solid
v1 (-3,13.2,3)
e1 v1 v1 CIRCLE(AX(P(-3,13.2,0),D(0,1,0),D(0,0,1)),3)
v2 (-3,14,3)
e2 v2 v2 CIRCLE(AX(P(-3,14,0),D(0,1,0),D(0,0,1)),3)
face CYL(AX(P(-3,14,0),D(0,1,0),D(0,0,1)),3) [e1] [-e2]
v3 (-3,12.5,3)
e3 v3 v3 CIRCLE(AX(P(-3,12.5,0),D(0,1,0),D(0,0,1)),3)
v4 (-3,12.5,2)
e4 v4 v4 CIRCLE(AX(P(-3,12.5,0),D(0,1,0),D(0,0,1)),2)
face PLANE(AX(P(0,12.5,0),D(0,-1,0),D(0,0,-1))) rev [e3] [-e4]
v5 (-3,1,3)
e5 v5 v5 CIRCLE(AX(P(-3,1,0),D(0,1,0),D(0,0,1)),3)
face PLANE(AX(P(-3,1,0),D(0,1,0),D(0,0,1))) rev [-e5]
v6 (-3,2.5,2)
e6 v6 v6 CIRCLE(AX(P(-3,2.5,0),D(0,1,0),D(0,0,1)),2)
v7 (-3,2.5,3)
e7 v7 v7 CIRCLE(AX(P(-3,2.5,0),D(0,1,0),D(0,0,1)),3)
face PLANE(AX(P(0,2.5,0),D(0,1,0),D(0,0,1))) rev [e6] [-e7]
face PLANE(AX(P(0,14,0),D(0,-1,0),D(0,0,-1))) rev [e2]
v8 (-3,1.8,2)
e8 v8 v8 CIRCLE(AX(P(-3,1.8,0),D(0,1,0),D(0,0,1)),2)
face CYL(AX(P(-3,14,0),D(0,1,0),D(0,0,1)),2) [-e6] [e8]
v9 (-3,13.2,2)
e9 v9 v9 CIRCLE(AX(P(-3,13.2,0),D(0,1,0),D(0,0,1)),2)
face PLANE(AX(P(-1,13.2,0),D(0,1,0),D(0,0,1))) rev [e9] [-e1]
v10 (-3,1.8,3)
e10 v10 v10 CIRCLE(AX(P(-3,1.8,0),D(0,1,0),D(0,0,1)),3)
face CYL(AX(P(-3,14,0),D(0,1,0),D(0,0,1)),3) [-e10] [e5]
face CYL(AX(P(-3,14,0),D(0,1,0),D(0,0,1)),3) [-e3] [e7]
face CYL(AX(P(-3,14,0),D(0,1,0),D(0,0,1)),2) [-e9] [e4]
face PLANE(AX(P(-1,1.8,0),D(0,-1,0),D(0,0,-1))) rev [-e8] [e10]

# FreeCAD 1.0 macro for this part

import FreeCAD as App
import Part
import Sketcher


def add_polygon(sketch, points):
    """Adds a closed chain of lines whose ends are joined by coincident constraints."""
    first, n = sketch.GeometryCount, len(points)
    for a, b in zip(points, points[1:] + points[:1]):
        sketch.addGeometry(Part.LineSegment(App.Vector(*a, 0), App.Vector(*b, 0)), False)
    for i in range(n):
        sketch.addConstraint(Sketcher.Constraint("Coincident", first + i, 2, first + (i + 1) % n, 1))

doc = App.newDocument("Part")
params = doc.addObject("Spreadsheet::Sheet", "Params")
for row, (alias, value) in enumerate([
    ("sketch1_width", "1 mm"),
    ("sketch1_width2", "3 mm"),
    ("sketch1_height", "10 mm"),
    ("sketch1_height2", "13 mm"),
    ("sketch1_height3", "0.7 mm"),
    ("revolution_angle", "360 deg"),
], start=1):
    params.set(f"A{row}", alias)
    params.set(f"B{row}", "=" + value)
    params.setAlias(f"B{row}", alias)

body = doc.addObject("PartDesign::Body", "Body")

sketch1 = doc.addObject("Sketcher::SketchObject", "Sketch")
body.addObject(sketch1)
sketch1.AttachmentSupport = (doc.XY_Plane, [""])
sketch1.MapMode = "FlatFace"
add_polygon(sketch1, [(0, 2.5), (0, 12.5), (-1, 12.5), (-1, 13.2), (0, 13.2), (0, 14), (-3, 14), (-3, 1), (0, 1), (0, 1.8), (-1, 1.8), (-1, 2.5)])
sketch1.addGeometry(Part.LineSegment(App.Vector(-3, 14, 0), App.Vector(-3, 1, 0)), True)
sketch1.addConstraint([
    Sketcher.Constraint("Vertical", 0),
    Sketcher.Constraint("Horizontal", 1),
    Sketcher.Constraint("Vertical", 2),
    Sketcher.Constraint("Horizontal", 3),
    Sketcher.Constraint("Vertical", 4),
    Sketcher.Constraint("Horizontal", 5),
    Sketcher.Constraint("Vertical", 6),
    Sketcher.Constraint("Horizontal", 7),
    Sketcher.Constraint("Vertical", 8),
    Sketcher.Constraint("Horizontal", 9),
    Sketcher.Constraint("Vertical", 10),
    Sketcher.Constraint("Horizontal", 11),
    Sketcher.Constraint("Vertical", 12),
    Sketcher.Constraint("Coincident", 12, 1, 5, 2),
    Sketcher.Constraint("PointOnObject", 0, 2, -2),
    Sketcher.Constraint("PointOnObject", 3, 2, -2),
    Sketcher.Constraint("PointOnObject", 7, 2, -2),
    Sketcher.Constraint("Horizontal", 7, 2, 12, 2),
    Sketcher.Constraint("Vertical", 2, 2, 9, 2),
    Sketcher.Constraint("Equal", 4, 8),
    Sketcher.Constraint("Equal", 2, 10),
    Sketcher.Constraint("DistanceX", 1, 2, 1, 1, 1.0),
    Sketcher.Constraint("DistanceX", 5, 2, 5, 1, 3.0),
    Sketcher.Constraint("DistanceY", 0, 1, 0, 2, 10.0),
    Sketcher.Constraint("DistanceY", 6, 2, 6, 1, 13.0),
    Sketcher.Constraint("DistanceY", 2, 1, 2, 2, 0.7),
    Sketcher.Constraint("DistanceY", -1, 1, 4, 2, 14.0),
])
sketch1.setExpression("Constraints[33]", "Params.sketch1_width")
sketch1.setExpression("Constraints[34]", "Params.sketch1_width2")
sketch1.setExpression("Constraints[35]", "Params.sketch1_height")
sketch1.setExpression("Constraints[36]", "Params.sketch1_height2")
sketch1.setExpression("Constraints[37]", "Params.sketch1_height3")
revolution = doc.addObject("PartDesign::Revolution", "Revolution")
body.addObject(revolution)
revolution.Profile = sketch1
revolution.ReferenceAxis = (sketch1, ["Axis0"])
revolution.setExpression("Angle", "Params.revolution_angle")

doc.recompute()
